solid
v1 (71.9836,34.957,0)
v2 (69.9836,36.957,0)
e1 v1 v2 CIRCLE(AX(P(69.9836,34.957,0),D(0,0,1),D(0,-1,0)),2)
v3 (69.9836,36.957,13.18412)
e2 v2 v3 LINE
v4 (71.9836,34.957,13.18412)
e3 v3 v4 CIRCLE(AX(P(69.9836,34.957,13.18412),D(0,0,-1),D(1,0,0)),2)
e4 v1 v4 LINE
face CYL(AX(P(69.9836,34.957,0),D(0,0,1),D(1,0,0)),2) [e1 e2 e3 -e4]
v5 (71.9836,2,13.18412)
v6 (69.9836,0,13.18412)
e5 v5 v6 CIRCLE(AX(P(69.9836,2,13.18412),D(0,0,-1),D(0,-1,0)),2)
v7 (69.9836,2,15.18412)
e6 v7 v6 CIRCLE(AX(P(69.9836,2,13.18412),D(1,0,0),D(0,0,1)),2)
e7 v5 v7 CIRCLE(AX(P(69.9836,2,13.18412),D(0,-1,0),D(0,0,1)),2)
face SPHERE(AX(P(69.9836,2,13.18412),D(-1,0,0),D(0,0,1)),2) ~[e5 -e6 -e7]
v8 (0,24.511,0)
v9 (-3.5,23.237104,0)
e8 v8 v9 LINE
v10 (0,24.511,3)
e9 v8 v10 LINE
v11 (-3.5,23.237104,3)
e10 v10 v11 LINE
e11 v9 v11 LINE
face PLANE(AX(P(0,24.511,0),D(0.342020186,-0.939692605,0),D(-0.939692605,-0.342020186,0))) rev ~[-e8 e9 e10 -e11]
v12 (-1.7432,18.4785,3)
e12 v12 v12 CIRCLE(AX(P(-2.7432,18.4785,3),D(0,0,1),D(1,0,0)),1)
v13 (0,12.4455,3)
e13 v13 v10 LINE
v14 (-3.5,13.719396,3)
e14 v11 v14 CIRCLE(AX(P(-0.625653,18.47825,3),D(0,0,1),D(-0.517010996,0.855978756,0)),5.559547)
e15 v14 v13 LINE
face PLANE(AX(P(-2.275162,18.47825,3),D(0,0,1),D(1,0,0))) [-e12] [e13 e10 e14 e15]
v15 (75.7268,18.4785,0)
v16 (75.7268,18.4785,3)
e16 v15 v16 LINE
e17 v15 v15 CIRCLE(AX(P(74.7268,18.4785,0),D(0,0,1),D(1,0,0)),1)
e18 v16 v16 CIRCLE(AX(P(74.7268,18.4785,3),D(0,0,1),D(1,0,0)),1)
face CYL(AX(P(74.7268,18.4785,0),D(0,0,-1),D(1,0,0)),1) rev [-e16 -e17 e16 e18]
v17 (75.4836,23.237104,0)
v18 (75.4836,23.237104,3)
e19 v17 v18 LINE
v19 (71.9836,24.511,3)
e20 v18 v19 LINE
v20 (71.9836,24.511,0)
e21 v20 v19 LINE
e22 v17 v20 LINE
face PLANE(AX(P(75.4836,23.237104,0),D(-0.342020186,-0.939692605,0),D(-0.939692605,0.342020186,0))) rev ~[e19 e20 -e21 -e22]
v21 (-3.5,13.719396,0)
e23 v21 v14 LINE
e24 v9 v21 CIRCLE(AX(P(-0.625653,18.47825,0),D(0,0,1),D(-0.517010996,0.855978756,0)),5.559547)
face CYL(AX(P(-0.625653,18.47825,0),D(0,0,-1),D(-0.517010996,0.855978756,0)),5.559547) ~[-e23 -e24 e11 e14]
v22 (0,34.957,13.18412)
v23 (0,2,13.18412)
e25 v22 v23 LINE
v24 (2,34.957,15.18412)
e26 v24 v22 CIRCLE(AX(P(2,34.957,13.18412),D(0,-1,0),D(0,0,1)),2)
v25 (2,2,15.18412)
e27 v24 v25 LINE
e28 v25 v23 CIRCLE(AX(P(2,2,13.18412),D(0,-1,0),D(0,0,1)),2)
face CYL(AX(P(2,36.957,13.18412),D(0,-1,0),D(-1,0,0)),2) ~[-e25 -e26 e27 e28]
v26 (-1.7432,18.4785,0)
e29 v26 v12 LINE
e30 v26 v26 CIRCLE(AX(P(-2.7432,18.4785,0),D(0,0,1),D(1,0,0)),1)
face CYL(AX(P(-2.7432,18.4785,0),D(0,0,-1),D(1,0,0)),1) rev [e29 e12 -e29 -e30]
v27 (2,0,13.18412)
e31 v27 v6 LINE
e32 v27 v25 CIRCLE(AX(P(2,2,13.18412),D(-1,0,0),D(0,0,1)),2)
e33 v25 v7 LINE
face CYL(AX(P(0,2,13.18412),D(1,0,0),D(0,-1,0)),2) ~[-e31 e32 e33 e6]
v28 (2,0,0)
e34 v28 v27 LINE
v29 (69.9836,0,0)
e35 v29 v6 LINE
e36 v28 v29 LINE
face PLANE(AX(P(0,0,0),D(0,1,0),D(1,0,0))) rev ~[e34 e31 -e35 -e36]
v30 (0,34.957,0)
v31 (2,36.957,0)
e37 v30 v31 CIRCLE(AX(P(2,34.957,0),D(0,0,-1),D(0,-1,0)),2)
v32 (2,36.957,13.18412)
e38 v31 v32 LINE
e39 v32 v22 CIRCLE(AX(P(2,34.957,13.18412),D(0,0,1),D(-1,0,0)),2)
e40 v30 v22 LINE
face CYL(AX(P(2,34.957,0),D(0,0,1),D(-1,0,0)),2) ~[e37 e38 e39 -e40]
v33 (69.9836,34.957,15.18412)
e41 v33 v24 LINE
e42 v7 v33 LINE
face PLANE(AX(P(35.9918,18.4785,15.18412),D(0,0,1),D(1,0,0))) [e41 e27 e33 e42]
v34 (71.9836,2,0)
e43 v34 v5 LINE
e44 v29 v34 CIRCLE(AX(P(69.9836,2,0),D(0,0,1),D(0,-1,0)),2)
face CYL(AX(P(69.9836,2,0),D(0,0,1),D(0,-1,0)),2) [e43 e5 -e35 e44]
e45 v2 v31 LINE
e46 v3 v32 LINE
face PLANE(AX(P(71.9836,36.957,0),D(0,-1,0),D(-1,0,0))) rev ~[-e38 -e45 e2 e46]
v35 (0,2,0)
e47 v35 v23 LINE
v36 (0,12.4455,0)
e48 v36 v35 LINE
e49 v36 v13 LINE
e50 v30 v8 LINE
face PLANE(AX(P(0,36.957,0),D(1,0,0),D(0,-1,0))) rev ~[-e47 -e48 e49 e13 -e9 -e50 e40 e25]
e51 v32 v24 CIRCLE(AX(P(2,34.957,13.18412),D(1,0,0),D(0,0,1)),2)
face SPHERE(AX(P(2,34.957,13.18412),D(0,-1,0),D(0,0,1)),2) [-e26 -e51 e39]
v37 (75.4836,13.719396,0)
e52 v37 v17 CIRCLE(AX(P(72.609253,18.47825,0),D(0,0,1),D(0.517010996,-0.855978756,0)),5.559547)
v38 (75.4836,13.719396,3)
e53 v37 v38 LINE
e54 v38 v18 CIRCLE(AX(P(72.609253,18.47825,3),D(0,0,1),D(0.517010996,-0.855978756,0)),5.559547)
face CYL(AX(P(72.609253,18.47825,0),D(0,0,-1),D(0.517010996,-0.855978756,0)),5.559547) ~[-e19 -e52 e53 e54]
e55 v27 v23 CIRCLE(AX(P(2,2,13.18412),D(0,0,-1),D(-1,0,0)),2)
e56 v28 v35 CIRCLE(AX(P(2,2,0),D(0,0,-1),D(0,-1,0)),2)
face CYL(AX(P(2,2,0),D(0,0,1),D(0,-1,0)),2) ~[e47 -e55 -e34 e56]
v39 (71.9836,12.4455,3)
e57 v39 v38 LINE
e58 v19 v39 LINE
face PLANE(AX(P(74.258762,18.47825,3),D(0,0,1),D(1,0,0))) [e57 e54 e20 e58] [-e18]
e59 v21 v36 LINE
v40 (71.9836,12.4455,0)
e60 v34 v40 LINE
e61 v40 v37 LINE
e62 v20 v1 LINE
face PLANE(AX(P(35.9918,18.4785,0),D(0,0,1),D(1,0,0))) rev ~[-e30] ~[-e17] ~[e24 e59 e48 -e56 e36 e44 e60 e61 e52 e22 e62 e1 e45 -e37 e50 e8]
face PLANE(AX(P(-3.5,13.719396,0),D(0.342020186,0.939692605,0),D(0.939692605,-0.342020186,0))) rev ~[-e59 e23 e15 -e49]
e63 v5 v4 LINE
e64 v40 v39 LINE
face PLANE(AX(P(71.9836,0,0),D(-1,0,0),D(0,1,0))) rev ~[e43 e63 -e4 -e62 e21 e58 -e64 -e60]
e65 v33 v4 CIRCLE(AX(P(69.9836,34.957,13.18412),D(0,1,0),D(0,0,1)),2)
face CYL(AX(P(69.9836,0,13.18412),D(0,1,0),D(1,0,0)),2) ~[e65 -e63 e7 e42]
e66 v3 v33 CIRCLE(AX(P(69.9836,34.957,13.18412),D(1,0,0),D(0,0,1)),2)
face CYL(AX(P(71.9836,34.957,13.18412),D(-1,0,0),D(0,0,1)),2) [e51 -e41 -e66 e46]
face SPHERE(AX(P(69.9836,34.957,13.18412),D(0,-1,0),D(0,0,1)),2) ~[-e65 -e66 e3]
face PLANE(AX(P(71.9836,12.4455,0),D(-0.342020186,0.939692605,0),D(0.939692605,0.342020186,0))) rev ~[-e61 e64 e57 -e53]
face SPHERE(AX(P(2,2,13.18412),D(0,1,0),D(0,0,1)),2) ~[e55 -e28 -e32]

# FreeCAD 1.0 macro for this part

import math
import FreeCAD as App
import Part
import Sketcher
from FreeCAD import Vector
Q = App.Units.Quantity


def edges_at(feature, points):
    """Names of the edges that pass closest to the given points."""
    edges = feature.Shape.Edges
    near = lambda p: min(range(len(edges)), key=lambda i: edges[i].distToShape(Part.Vertex(*p))[0])
    return sorted({f"Edge{near(p) + 1}" for p in points})


def add_polygon(sketch, points):
    """Adds a closed chain of lines whose ends are joined by coincident constraints."""
    first, n = sketch.GeometryCount, len(points)
    for a, b in zip(points, points[1:] + points[:1]):
        sketch.addGeometry(Part.LineSegment(App.Vector(*a, 0), App.Vector(*b, 0)), False)
    for i in range(n):
        sketch.addConstraint(Sketcher.Constraint("Coincident", first + i, 2, first + (i + 1) % n, 1))

doc = App.newDocument("Part")
body = doc.addObject("PartDesign::Body", "Body")

# Sketch on XY plane
sketch1 = body.newObject("Sketcher::SketchObject", "Sketch")
sketch1.AttachmentSupport = (doc.getObject("XY_Plane"), [""])
sketch1.MapMode = "FlatFace"
add_polygon(sketch1, [(0, 0), (72, 0), (72, 37), (0, 37)])  # lines 0-3
sketch1.addConstraint([
    Sketcher.Constraint("Horizontal", 0),
    Sketcher.Constraint("Vertical", 1),
    Sketcher.Constraint("Horizontal", 2),
    Sketcher.Constraint("Vertical", 3),
    Sketcher.Constraint("Coincident", 3, 2, -1, 1),
    Sketcher.Constraint("DistanceY", 1, 1, 1, 2, 36.957),
    Sketcher.Constraint("DistanceX", 0, 1, 0, 2, 71.9836),
])
pad1 = body.newObject("PartDesign::Pad", "Pad")
pad1.Profile = sketch1
pad1.Length = 15.18412

# Sketch on XY plane
sketch2 = body.newObject("Sketcher::SketchObject", "Sketch001")
sketch2.AttachmentSupport = (doc.getObject("XY_Plane"), [""])
sketch2.MapMode = "FlatFace"
sketch2.addGeometry([
    Part.LineSegment(Vector(72, 24.5, 0), Vector(72, 12.4, 0)),  # 0
    Part.LineSegment(Vector(72, 12.4, 0), Vector(75.5, 13.7, 0)),  # 1
    Part.ArcOfCircle(Part.Circle(Vector(72.6, 18.5, 0), Vector(0, 0, 1), 5.6), math.radians(-59), math.radians(59)),  # 2
    Part.LineSegment(Vector(75.5, 23.2, 0), Vector(72, 24.5, 0)),  # 3
    Part.Circle(Vector(74.7, 18.5, 0), Vector(0, 0, 1), 1),  # 4
    Part.LineSegment(Vector(-3.5, 13.7, 0), Vector(0, 12.4, 0)),  # 5
    Part.LineSegment(Vector(0, 12.4, 0), Vector(0, 24.5, 0)),  # 6
    Part.LineSegment(Vector(0, 24.5, 0), Vector(-3.5, 23.2, 0)),  # 7
    Part.ArcOfCircle(Part.Circle(Vector(-0.6, 18.5, 0), Vector(0, 0, 1), 5.6), math.radians(121), math.radians(239)),  # 8
    Part.Circle(Vector(-2.7, 18.5, 0), Vector(0, 0, 1), 1),  # 9
], False)
sketch2.addConstraint([
    Sketcher.Constraint("Coincident", 0, 2, 1, 1),
    Sketcher.Constraint("Coincident", 1, 2, 2, 1),
    Sketcher.Constraint("Coincident", 2, 2, 3, 1),
    Sketcher.Constraint("Coincident", 3, 2, 0, 1),
    Sketcher.Constraint("Coincident", 5, 2, 6, 1),
    Sketcher.Constraint("Coincident", 6, 2, 7, 1),
    Sketcher.Constraint("Coincident", 7, 2, 8, 1),
    Sketcher.Constraint("Coincident", 8, 2, 5, 1),
    Sketcher.Constraint("Vertical", 0),
    Sketcher.Constraint("Vertical", 6),
    Sketcher.Constraint("Equal", 2, 8),
    Sketcher.Constraint("Equal", 4, 9),
    Sketcher.Constraint("PointOnObject", 5, 2, -2),
    Sketcher.Constraint("Parallel", 3, 5),
    Sketcher.Constraint("Parallel", 1, 7),
    Sketcher.Constraint("Horizontal", 2, 3, 8, 3),
    Sketcher.Constraint("Horizontal", 4, 3, 9, 3),
    Sketcher.Constraint("Horizontal", 0, 2, 5, 2),
    Sketcher.Constraint("Horizontal", 3, 2, 6, 2),
    Sketcher.Constraint("Horizontal", 2, 2, 7, 2),
    Sketcher.Constraint("Horizontal", 1, 2, 8, 2),
    Sketcher.Constraint("Vertical", 1, 2, 2, 2),
    Sketcher.Constraint("Diameter", 4, 2.0),
    Sketcher.Constraint("Angle", 1, Q("20.000003 deg")),
    Sketcher.Constraint("DistanceX", 7, 2, -1, 1, 3.5),
    Sketcher.Constraint("DistanceX", 9, 3, 4, 3, 77.47),
    Sketcher.Constraint("DistanceY", 0, 2, 0, 1, 12.0655),
    Sketcher.Constraint("DistanceY", -1, 1, 3, 2, 24.511),
    Sketcher.Constraint("Radius", 2, 5.559547),
    Sketcher.Constraint("DistanceY", 0, 2, 4, 3, 6.033),
    Sketcher.Constraint("DistanceX", -1, 1, 4, 3, 74.7268),
    Sketcher.Constraint("DistanceX", -1, 1, 0, 2, 71.9836),
])
pad2 = body.newObject("PartDesign::Pad", "Pad001")
pad2.Profile = sketch2
pad2.Length = 3
doc.recompute()

fillet = body.newObject("PartDesign::Fillet", "Fillet")
fillet.Base = (pad2, edges_at(pad2, [
    (0, 18.479, 15.184),
    (35.992, 0, 15.184),
    (71.984, 18.479, 15.184),
    (35.992, 36.957, 15.184),
    (0, 36.957, 7.592),
    (71.984, 36.957, 7.592),
    (71.984, 0, 7.592),
    (0, 0, 7.592),
]))
fillet.Radius = 2

doc.recompute()
